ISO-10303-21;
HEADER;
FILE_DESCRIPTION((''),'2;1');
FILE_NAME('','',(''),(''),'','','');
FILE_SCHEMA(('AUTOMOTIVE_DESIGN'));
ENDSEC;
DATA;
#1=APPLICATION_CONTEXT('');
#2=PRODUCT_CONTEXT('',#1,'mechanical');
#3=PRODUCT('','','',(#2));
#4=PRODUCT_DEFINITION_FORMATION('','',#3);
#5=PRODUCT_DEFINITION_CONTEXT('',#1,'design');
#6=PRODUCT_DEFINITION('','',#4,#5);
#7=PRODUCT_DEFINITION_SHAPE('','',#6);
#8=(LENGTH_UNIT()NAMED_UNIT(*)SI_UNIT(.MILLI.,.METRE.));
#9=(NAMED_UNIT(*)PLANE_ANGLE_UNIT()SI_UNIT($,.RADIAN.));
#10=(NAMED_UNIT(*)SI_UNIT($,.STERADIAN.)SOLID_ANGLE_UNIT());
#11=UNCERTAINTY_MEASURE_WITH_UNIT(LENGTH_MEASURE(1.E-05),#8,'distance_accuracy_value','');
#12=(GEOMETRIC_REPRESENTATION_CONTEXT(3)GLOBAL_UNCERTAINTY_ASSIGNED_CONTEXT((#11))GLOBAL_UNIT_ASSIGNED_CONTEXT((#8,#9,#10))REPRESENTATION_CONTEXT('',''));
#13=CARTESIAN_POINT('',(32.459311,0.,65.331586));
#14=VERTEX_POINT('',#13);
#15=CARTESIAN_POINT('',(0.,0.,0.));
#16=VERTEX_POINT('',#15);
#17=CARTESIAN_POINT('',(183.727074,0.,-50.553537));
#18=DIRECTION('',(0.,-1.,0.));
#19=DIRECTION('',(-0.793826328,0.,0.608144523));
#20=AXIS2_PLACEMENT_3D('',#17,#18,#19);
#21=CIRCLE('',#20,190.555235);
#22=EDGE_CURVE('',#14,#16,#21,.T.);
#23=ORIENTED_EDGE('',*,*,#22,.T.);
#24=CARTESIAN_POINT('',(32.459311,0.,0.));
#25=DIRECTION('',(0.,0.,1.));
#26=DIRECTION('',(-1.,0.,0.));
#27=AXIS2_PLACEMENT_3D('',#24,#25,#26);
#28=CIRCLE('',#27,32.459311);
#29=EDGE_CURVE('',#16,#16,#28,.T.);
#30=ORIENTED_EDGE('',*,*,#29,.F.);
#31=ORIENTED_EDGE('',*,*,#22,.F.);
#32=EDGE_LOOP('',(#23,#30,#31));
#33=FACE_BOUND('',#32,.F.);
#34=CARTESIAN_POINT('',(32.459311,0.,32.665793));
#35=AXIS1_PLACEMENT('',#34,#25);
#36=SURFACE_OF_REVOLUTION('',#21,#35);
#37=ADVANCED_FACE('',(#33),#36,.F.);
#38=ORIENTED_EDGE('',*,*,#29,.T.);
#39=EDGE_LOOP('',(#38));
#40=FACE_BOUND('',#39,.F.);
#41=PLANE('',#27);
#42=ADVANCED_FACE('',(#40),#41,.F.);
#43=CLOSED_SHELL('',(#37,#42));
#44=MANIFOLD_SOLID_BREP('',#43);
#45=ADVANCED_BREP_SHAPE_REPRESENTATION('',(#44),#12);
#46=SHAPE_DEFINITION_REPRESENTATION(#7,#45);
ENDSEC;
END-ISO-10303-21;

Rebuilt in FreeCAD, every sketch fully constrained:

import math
import FreeCAD as App
import Part
import Sketcher

V = App.Vector
Q = App.Units.Quantity

doc = App.newDocument("Part")
body = doc.addObject("PartDesign::Body", "Body")

# Sketch on XZ plane
sketch1 = body.newObject("Sketcher::SketchObject", "Sketch")
sketch1.AttachmentSupport = (doc.getObject("XZ_Plane"), [""])
sketch1.MapMode = "FlatFace"
sketch1.addGeometry([
    Part.ArcOfCircle(Part.Circle(V(184, -51, 0), V(0, 0, 1), 191), math.radians(143), math.radians(165)),
    Part.LineSegment(V(0, 0, 0), V(32, 0, 0)),
    Part.LineSegment(V(32, 0, 0), V(32, 65, 0)),
], False)
sketch1.addGeometry(Part.LineSegment(V(32, -51, 0), V(32, 65, 0)), True)  # axis
sketch1.addConstraint([
    Sketcher.Constraint("Coincident", 0, 2, 1, 1),
    Sketcher.Constraint("Coincident", 1, 2, 2, 1),
    Sketcher.Constraint("Coincident", 2, 2, 0, 1),
    Sketcher.Constraint("Horizontal", 1),
    Sketcher.Constraint("Vertical", 2),
    Sketcher.Constraint("Vertical", 3),
    Sketcher.Constraint("Coincident", 0, 2, -1, 1),
    Sketcher.Constraint("Coincident", 3, 2, 2, 2),
    Sketcher.Constraint("Horizontal", 0, 3, 3, 1),
    Sketcher.Constraint("Radius", 0, Q("190.555235 mm")),
    Sketcher.Constraint("DistanceX", 1, 1, 1, 2, Q("32.459311 mm")),
    Sketcher.Constraint("DistanceY", 2, 1, 2, 2, Q("65.331586 mm")),
])
revolution = body.newObject("PartDesign::Revolution", "Revolution")
revolution.Profile = sketch1
revolution.ReferenceAxis = (sketch1, ["Axis0"])
revolution.Angle = 360

doc.recompute()
